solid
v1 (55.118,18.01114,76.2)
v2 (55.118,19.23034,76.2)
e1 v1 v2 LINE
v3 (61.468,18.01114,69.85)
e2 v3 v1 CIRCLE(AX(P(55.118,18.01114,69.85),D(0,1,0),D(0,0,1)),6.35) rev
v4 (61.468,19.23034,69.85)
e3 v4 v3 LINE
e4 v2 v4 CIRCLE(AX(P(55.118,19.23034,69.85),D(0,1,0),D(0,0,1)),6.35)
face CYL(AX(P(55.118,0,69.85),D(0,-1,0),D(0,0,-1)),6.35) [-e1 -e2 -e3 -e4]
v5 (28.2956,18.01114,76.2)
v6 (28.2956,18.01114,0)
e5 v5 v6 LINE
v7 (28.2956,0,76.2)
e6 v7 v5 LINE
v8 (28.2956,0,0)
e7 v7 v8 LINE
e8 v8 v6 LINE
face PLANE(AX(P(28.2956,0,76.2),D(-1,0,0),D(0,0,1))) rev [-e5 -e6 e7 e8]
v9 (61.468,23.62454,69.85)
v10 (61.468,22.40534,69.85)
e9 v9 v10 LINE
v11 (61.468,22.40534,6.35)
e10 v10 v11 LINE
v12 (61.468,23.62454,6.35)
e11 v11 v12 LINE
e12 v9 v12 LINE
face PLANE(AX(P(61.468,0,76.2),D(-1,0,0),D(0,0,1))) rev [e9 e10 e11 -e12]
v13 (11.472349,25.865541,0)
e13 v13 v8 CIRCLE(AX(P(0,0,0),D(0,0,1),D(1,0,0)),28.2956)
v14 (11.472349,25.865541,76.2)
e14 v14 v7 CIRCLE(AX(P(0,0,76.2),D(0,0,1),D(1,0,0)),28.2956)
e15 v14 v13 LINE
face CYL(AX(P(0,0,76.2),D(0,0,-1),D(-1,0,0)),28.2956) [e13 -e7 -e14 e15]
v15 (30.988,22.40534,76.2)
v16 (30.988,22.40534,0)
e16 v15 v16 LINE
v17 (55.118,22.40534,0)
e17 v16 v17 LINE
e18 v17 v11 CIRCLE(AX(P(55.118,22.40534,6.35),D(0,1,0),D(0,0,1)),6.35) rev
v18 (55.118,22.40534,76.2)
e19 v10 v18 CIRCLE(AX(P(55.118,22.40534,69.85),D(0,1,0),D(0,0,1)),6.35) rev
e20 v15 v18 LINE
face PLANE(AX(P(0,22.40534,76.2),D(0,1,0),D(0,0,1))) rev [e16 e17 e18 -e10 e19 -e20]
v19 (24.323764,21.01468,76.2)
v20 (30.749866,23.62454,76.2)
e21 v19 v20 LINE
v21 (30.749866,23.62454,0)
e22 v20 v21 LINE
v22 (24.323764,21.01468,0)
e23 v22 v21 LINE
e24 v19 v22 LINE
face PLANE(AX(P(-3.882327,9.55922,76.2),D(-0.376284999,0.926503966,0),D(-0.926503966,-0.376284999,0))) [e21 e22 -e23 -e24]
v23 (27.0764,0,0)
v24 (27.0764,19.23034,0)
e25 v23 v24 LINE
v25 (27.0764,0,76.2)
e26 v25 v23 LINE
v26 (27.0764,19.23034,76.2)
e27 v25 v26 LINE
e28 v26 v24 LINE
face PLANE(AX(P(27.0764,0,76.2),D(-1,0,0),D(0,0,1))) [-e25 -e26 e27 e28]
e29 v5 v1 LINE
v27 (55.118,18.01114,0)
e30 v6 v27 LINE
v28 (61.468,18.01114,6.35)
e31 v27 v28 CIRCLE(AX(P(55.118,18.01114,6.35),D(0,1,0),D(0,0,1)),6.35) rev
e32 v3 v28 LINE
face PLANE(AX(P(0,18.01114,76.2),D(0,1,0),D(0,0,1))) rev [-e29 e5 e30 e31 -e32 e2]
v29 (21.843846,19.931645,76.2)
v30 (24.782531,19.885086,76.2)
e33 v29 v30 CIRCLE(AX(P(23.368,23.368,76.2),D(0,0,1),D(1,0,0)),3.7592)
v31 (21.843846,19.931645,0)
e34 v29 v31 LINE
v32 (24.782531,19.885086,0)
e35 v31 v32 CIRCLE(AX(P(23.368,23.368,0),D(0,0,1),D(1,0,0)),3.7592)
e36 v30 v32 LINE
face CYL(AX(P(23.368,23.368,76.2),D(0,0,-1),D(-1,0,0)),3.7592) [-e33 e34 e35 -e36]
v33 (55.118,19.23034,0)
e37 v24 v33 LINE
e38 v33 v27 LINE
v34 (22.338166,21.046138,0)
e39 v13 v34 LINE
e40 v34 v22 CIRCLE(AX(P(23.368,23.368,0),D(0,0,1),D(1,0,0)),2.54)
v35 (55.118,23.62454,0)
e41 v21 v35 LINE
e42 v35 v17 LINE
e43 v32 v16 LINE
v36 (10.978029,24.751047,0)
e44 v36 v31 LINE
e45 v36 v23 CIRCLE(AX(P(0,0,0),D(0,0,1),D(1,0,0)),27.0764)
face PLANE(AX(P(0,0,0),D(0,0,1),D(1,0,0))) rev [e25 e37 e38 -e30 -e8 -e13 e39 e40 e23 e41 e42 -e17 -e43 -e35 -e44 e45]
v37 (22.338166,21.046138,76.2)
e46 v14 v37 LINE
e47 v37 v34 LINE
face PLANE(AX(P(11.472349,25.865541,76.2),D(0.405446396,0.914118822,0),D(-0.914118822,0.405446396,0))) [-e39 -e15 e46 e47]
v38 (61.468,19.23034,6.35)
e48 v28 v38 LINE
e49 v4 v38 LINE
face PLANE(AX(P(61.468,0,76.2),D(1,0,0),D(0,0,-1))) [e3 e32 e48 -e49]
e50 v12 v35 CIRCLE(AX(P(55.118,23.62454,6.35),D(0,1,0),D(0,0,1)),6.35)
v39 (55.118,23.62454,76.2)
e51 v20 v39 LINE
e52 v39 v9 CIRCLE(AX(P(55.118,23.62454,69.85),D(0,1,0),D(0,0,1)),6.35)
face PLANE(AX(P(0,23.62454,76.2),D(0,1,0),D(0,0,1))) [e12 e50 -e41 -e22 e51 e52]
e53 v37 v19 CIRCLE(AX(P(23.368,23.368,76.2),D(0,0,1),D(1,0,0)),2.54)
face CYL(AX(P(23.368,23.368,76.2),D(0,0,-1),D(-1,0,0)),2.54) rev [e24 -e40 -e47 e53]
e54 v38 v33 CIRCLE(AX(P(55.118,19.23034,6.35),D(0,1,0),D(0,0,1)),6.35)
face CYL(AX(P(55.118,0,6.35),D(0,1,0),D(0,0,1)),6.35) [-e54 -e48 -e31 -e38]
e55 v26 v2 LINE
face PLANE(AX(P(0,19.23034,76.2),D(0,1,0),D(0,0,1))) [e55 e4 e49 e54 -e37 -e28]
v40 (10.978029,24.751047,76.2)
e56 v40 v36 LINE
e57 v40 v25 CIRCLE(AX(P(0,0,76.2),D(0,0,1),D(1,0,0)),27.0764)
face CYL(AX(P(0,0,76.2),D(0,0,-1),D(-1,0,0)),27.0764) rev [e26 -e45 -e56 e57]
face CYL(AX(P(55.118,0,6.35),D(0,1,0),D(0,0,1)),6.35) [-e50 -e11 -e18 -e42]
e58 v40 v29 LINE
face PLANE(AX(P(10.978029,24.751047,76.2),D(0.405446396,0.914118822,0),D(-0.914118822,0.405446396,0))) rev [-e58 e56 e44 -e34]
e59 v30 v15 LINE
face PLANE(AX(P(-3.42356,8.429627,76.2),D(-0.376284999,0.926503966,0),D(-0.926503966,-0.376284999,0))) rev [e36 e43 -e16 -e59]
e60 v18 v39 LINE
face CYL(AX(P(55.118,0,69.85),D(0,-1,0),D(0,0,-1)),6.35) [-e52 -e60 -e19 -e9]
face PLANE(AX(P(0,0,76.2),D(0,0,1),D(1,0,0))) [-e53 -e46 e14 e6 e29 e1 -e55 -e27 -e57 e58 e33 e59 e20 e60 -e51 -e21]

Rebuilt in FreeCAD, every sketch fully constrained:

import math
import FreeCAD as App
import Part
import Sketcher
Q = App.Units.Quantity


def edges_at(feature, points):
    """Names of the edges that pass closest to the given points."""
    edges = feature.Shape.Edges
    near = lambda p: min(range(len(edges)), key=lambda i: edges[i].distToShape(Part.Vertex(*p))[0])
    return sorted({f"Edge{near(p) + 1}" for p in points})

doc = App.newDocument("Part")
params = doc.addObject("Spreadsheet::Sheet", "Params")
for row, (alias, value) in enumerate([
    ("sketch1_radius", "0.1 in"),
    ("sketch1_width", "1.2 in"),
    ("sketch1_radius2", "1.114 in"),
    ("sketch1_radius3", "1.066 in"),
    ("sketch1_width2", "1.306 in"),
    ("pad1_length", "3 in"),
    ("fillet_radius", "0.25 in"),
], start=1):
    params.set(f"A{row}", alias)
    params.set(f"B{row}", "=" + value)
    params.setAlias(f"B{row}", alias)

body = doc.addObject("PartDesign::Body", "Body")

sketch1 = body.newObject("Sketcher::SketchObject", "Sketch")
sketch1.AttachmentSupport = (doc.getObject("XY_Plane"), [""])
sketch1.MapMode = "FlatFace"
sketch1.addGeometry([
    Part.LineSegment(App.Vector(61.468, 23.62454, 0), App.Vector(30.749866, 23.62454, 0)),
    Part.LineSegment(App.Vector(30.749866, 23.62454, 0), App.Vector(24.323764, 21.01468, 0)),
    Part.ArcOfCircle(Part.Circle(App.Vector(23.368, 23.368, 0), App.Vector(0, 0, 1), 2.54), math.radians(-113.919104), math.radians(-67.896244)),
    Part.LineSegment(App.Vector(22.338166, 21.046138, 0), App.Vector(11.472349, 25.865541, 0)),
    Part.ArcOfCircle(Part.Circle(App.Vector(0, 0, 0), App.Vector(0, 0, 1), 28.2956), math.radians(66.080896), math.radians(360)),
    Part.LineSegment(App.Vector(28.2956, 0, 0), App.Vector(28.2956, 18.01114, 0)),
    Part.LineSegment(App.Vector(28.2956, 18.01114, 0), App.Vector(61.468, 18.01114, 0)),
    Part.LineSegment(App.Vector(61.468, 18.01114, 0), App.Vector(61.468, 19.23034, 0)),
    Part.LineSegment(App.Vector(61.468, 19.23034, 0), App.Vector(27.0764, 19.23034, 0)),
    Part.LineSegment(App.Vector(27.0764, 19.23034, 0), App.Vector(27.0764, 0, 0)),
    Part.ArcOfCircle(Part.Circle(App.Vector(0, 0, 0), App.Vector(0, 0, 1), 27.0764), math.radians(66.080896), math.radians(360)),
    Part.LineSegment(App.Vector(10.978029, 24.751047, 0), App.Vector(21.843846, 19.931645, 0)),
    Part.ArcOfCircle(Part.Circle(App.Vector(23.368, 23.368, 0), App.Vector(0, 0, 1), 3.7592), math.radians(-113.919104), math.radians(-67.896244)),
    Part.LineSegment(App.Vector(24.782531, 19.885086, 0), App.Vector(30.988, 22.40534, 0)),
    Part.LineSegment(App.Vector(30.988, 22.40534, 0), App.Vector(61.468, 22.40534, 0)),
    Part.LineSegment(App.Vector(61.468, 22.40534, 0), App.Vector(61.468, 23.62454, 0)),
], False)
sketch1.addConstraint([
    Sketcher.Constraint("Coincident", 0, 2, 1, 1),
    Sketcher.Constraint("Tangent", 1, 2, 2, 2),
    Sketcher.Constraint("Tangent", 2, 1, 3, 1),
    Sketcher.Constraint("Tangent", 3, 2, 4, 1),
    Sketcher.Constraint("Tangent", 4, 2, 5, 1),
    Sketcher.Constraint("Coincident", 5, 2, 6, 1),
    Sketcher.Constraint("Coincident", 6, 2, 7, 1),
    Sketcher.Constraint("Coincident", 7, 2, 8, 1),
    Sketcher.Constraint("Coincident", 8, 2, 9, 1),
    Sketcher.Constraint("Tangent", 9, 2, 10, 2),
    Sketcher.Constraint("Tangent", 10, 1, 11, 1),
    Sketcher.Constraint("Tangent", 11, 2, 12, 1),
    Sketcher.Constraint("Tangent", 12, 2, 13, 1),
    Sketcher.Constraint("Coincident", 13, 2, 14, 1),
    Sketcher.Constraint("Coincident", 14, 2, 15, 1),
    Sketcher.Constraint("Coincident", 15, 2, 0, 1),
    Sketcher.Constraint("Horizontal", 0),
    Sketcher.Constraint("Vertical", 5),
    Sketcher.Constraint("Horizontal", 6),
    Sketcher.Constraint("Vertical", 7),
    Sketcher.Constraint("Horizontal", 8),
    Sketcher.Constraint("Vertical", 9),
    Sketcher.Constraint("Horizontal", 14),
    Sketcher.Constraint("Vertical", 15),
    Sketcher.Constraint("Coincident", 4, 3, -1, 1),
    Sketcher.Constraint("Coincident", 10, 3, -1, 1),
    Sketcher.Constraint("Coincident", 12, 3, 2, 3),
    Sketcher.Constraint("Parallel", 3, 11),
    Sketcher.Constraint("Parallel", 1, 13),
    Sketcher.Constraint("Vertical", 7, 2, 14, 2),
    Sketcher.Constraint("Equal", 7, 15),
    Sketcher.Constraint("Radius", 2, Q("0.1 in")),
    Sketcher.Constraint("DistanceX", 14, 1, 14, 2, Q("1.2 in")),
    Sketcher.Constraint("Radius", 4, Q("1.114 in")),
    Sketcher.Constraint("Radius", 10, Q("1.066 in")),
    Sketcher.Constraint("DistanceX", 2, 3, 6, 2, Q("1.5 in")),
    Sketcher.Constraint("DistanceX", 6, 1, 6, 2, Q("1.306 in")),
    Sketcher.Constraint("DistanceY", 7, 1, 7, 2, Q("0.048 in")),
    Sketcher.Constraint("DistanceY", -1, 1, 2, 3, Q("0.92 in")),
    Sketcher.Constraint("DistanceY", 5, 1, 5, 2, Q("0.7091 in")),
    Sketcher.Constraint("DistanceY", 5, 2, 0, 2, Q("0.221 in")),
])
sketch1.setExpression("Constraints[31]", "Params.sketch1_radius")
sketch1.setExpression("Constraints[32]", "Params.sketch1_width")
sketch1.setExpression("Constraints[33]", "Params.sketch1_radius2")
sketch1.setExpression("Constraints[34]", "Params.sketch1_radius3")
sketch1.setExpression("Constraints[36]", "Params.sketch1_width2")
pad1 = body.newObject("PartDesign::Pad", "Pad")
pad1.Profile = sketch1
pad1.setExpression("Length", "Params.pad1_length")
doc.recompute()

fillet = body.newObject("PartDesign::Fillet", "Fillet")
fillet.Base = (pad1, edges_at(pad1, [
    (61.468, 23.015, 76.2),
    (61.468, 18.621, 0),
    (61.468, 23.015, 0),
    (61.468, 18.621, 76.2),
]))
fillet.setExpression("Radius", "Params.fillet_radius")

doc.recompute()
